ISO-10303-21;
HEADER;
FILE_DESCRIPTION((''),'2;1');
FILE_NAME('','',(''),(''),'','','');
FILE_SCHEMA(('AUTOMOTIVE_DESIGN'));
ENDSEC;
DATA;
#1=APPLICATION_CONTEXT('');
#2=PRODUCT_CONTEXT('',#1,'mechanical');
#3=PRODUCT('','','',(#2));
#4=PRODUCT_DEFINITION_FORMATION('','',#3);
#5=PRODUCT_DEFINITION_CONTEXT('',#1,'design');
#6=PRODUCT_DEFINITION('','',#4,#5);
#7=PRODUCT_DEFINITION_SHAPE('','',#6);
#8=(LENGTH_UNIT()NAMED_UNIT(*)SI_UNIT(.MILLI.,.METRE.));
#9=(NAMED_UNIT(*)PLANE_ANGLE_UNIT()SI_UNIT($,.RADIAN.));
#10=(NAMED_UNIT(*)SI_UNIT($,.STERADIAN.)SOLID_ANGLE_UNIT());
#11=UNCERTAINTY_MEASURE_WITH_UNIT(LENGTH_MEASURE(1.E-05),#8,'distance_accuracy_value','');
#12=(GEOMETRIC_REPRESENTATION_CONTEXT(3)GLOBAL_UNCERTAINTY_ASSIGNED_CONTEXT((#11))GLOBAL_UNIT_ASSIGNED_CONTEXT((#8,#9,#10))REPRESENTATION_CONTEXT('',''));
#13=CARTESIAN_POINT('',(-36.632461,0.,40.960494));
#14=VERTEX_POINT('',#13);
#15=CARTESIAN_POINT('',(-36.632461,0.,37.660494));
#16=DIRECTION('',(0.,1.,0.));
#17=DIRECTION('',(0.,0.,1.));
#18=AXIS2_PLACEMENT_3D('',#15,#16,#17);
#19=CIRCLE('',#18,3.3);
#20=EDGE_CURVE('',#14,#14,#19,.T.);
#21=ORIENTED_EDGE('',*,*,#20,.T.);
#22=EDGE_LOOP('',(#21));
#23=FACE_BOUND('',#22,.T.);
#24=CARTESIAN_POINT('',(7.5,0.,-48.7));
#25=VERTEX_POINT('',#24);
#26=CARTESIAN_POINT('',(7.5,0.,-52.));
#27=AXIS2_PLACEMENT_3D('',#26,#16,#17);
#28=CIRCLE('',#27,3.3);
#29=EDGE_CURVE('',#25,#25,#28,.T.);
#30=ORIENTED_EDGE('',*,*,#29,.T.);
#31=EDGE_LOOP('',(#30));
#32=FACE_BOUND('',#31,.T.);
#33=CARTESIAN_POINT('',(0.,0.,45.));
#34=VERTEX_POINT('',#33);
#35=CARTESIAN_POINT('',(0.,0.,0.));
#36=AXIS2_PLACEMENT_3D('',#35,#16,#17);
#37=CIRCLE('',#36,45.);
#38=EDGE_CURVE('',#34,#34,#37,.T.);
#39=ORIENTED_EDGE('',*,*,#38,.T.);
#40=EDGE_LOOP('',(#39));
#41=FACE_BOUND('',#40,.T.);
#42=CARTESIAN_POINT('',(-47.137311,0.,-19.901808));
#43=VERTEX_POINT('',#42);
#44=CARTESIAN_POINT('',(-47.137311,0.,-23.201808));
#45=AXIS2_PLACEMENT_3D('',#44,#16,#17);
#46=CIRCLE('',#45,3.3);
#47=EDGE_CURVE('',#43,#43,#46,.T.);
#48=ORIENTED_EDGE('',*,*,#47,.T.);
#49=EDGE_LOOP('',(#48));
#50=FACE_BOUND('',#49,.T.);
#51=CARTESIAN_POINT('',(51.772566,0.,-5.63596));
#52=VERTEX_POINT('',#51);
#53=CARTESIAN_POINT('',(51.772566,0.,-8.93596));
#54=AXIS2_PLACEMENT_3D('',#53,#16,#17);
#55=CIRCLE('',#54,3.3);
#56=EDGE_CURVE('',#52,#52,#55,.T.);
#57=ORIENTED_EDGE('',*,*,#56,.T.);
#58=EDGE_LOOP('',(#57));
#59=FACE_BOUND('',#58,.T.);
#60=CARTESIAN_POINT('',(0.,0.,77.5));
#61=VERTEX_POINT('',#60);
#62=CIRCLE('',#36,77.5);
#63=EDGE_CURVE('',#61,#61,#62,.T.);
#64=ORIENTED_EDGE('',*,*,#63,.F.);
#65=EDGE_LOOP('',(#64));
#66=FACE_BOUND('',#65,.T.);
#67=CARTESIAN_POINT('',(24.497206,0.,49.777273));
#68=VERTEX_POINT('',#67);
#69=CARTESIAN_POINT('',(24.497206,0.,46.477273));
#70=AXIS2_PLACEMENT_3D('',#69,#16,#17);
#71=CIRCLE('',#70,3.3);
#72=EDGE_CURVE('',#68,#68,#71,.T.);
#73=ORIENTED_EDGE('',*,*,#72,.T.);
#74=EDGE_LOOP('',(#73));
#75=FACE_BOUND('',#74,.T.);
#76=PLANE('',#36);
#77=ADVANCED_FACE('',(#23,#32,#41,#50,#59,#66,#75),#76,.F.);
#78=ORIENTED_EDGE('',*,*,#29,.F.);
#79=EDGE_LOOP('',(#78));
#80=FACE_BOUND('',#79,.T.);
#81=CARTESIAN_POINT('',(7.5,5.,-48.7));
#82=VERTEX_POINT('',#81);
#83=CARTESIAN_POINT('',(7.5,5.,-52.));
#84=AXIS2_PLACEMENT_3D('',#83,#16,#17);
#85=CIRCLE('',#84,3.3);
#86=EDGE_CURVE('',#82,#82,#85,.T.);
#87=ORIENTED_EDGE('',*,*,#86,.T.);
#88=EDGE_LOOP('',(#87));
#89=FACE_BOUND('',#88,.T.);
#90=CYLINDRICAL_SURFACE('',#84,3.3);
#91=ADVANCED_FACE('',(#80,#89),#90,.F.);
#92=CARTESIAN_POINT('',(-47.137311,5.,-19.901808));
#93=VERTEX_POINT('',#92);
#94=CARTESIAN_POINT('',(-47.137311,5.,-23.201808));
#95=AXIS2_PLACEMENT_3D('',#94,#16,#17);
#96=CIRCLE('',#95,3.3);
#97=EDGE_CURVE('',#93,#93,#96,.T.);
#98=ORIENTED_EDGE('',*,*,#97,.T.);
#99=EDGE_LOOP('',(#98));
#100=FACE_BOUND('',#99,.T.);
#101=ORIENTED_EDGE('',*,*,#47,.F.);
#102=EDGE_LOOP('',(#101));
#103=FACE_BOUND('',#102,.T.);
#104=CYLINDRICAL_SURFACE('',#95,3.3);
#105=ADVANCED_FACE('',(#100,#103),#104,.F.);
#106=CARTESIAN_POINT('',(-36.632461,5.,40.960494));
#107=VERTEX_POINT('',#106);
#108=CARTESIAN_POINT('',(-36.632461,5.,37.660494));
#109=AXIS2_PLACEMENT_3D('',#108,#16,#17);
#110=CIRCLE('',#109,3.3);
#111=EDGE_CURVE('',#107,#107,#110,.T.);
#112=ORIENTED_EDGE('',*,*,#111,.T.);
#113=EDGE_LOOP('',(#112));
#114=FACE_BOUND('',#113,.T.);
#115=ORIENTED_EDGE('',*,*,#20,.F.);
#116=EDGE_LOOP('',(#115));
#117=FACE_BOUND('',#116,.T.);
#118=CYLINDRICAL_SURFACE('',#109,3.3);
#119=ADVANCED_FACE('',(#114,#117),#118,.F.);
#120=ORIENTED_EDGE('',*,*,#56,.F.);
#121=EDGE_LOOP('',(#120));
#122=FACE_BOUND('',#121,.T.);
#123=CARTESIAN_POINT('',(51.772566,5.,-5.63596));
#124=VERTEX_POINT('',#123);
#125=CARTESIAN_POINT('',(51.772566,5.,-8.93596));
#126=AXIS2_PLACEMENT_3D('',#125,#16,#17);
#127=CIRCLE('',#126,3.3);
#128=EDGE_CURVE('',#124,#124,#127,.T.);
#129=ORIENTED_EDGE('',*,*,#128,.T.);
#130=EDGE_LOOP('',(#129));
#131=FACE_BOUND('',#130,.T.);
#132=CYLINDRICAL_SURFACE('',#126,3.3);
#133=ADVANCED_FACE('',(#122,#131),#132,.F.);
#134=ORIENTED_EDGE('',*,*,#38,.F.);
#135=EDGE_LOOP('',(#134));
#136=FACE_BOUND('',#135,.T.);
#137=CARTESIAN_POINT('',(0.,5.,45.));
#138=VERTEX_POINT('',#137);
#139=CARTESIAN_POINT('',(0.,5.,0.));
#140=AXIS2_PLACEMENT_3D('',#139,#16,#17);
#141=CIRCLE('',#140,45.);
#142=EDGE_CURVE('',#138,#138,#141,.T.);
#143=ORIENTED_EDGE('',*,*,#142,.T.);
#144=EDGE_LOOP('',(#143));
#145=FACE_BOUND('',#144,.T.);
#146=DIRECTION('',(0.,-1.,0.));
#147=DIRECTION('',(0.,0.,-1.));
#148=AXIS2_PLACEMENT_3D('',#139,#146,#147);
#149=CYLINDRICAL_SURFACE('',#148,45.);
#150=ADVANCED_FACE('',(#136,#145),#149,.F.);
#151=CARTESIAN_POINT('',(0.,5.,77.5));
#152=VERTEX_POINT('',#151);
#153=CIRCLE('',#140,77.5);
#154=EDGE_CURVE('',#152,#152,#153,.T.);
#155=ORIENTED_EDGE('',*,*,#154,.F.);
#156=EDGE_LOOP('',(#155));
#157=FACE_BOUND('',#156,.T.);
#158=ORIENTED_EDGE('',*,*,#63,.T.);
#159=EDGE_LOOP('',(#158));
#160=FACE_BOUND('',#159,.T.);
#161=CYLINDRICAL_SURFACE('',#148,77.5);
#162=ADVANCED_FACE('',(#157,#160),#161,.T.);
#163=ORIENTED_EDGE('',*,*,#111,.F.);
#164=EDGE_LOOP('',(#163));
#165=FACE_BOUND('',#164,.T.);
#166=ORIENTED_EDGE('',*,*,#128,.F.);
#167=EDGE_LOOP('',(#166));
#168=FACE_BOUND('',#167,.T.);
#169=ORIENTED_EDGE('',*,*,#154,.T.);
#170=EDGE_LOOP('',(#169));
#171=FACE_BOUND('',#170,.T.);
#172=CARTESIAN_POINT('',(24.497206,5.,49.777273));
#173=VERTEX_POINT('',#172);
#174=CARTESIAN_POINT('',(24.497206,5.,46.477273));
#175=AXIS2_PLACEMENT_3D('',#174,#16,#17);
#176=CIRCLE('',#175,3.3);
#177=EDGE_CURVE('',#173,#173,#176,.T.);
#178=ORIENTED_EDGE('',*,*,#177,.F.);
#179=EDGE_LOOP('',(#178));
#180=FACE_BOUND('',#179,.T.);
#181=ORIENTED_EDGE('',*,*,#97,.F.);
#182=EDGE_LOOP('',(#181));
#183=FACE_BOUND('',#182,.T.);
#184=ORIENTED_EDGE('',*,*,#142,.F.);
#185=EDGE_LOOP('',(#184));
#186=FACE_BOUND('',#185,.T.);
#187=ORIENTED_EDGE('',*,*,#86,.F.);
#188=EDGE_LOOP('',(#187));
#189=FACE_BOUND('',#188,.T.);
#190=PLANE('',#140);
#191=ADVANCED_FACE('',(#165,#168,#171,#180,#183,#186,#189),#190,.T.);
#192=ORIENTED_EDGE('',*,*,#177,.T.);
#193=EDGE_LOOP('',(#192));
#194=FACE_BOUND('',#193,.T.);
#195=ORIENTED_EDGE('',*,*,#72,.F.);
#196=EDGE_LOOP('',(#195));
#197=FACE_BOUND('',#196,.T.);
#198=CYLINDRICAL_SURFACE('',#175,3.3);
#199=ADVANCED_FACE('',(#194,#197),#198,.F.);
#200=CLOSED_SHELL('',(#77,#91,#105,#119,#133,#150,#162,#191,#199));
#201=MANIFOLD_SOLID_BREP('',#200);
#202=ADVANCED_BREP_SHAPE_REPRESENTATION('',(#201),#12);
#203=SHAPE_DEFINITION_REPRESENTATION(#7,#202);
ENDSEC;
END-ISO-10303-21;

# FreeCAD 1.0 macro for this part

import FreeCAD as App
import Part
import Sketcher
from FreeCAD import Vector
Q = App.Units.Quantity

doc = App.newDocument("Part")
body = doc.addObject("PartDesign::Body", "Body")

# Sketch on XZ plane
sketch1 = doc.addObject("Sketcher::SketchObject", "Sketch")
body.addObject(sketch1)
sketch1.AttachmentSupport = (doc.XZ_Plane, [""])
sketch1.MapMode = "FlatFace"
sketch1.addGeometry(Part.Circle(Vector(0, 0, 0), Vector(0, 0, 1), 78), False)
sketch1.addGeometry(Part.Circle(Vector(0, 0, 0), Vector(0, 0, 1), 45), False)
sketch1.addConstraint(Sketcher.Constraint("Coincident", 0, 3, -1, 1))
sketch1.addConstraint(Sketcher.Constraint("Coincident", 1, 3, -1, 1))
sketch1.addConstraint(Sketcher.Constraint("Diameter", 0, Q("155 mm")))
sketch1.addConstraint(Sketcher.Constraint("Diameter", 1, Q("90 mm")))
pad1 = doc.addObject("PartDesign::Pad", "Pad")
body.addObject(pad1)
pad1.Profile = sketch1
pad1.Length = 5
pad1.Reversed = True

# Sketch on XZ plane
sketch2 = doc.addObject("Sketcher::SketchObject", "Sketch001")
body.addObject(sketch2)
sketch2.AttachmentSupport = (doc.XZ_Plane, [""])
sketch2.MapMode = "FlatFace"
sketch2.AttachmentOffset = App.Placement(Vector(0, 0, -5), App.Rotation())
sketch2.addGeometry(Part.Circle(Vector(7.5, -52, 0), Vector(0, 0, 1), 3.3), False)
sketch2.addGeometry(Part.Circle(Vector(51.8, -8.9, 0), Vector(0, 0, 1), 3.3), False)
sketch2.addGeometry(Part.Circle(Vector(24.5, 46.5, 0), Vector(0, 0, 1), 3.3), False)
sketch2.addGeometry(Part.Circle(Vector(-36.6, 37.7, 0), Vector(0, 0, 1), 3.3), False)
sketch2.addGeometry(Part.Circle(Vector(-47.1, -23.2, 0), Vector(0, 0, 1), 3.3), False)
sketch2.addGeometry(Part.Circle(Vector(0, 0, 0), Vector(0, 0, 1), 3.3), False)
sketch2.addConstraint(Sketcher.Constraint("Coincident", 5, 3, -1, 1))
sketch2.addConstraint(Sketcher.Constraint("Equal", 0, 1))
sketch2.addConstraint(Sketcher.Constraint("Equal", 1, 2))
sketch2.addConstraint(Sketcher.Constraint("Equal", 2, 3))
sketch2.addConstraint(Sketcher.Constraint("Equal", 3, 4))
sketch2.addConstraint(Sketcher.Constraint("Equal", 4, 5))
sketch2.addConstraint(Sketcher.Constraint("Diameter", 0, Q("6.6 mm")))
sketch2.addConstraint(Sketcher.Constraint("DistanceY", 0, 3, -1, 1, Q("52 mm")))
sketch2.addConstraint(Sketcher.Constraint("DistanceX", -1, 1, 0, 3, Q("7.5 mm")))
sketch2.addConstraint(Sketcher.Constraint("DistanceY", 4, 3, 3, 3, Q("60.862302 mm")))
sketch2.addConstraint(Sketcher.Constraint("DistanceY", 1, 3, -1, 1, Q("8.93596 mm")))
sketch2.addConstraint(Sketcher.Constraint("DistanceX", 3, 3, -1, 1, Q("36.632461 mm")))
sketch2.addConstraint(Sketcher.Constraint("DistanceX", 4, 3, -1, 1, Q("47.137311 mm")))
sketch2.addConstraint(Sketcher.Constraint("DistanceX", 2, 3, 1, 3, Q("27.275361 mm")))
sketch2.addConstraint(Sketcher.Constraint("DistanceY", 3, 3, 2, 3, Q("8.816779 mm")))
sketch2.addConstraint(Sketcher.Constraint("DistanceX", -1, 1, 1, 3, Q("51.772566 mm")))
sketch2.addConstraint(Sketcher.Constraint("DistanceY", -1, 1, 2, 3, Q("46.477273 mm")))
doc.recompute()
hole = doc.addObject("PartDesign::Hole", "Hole")
body.addObject(hole)
hole.Profile = sketch2
hole.ThreadType = "None"
hole.Diameter = 6.6
hole.DepthType = "ThroughAll"
hole.Reversed = True

doc.recompute()
